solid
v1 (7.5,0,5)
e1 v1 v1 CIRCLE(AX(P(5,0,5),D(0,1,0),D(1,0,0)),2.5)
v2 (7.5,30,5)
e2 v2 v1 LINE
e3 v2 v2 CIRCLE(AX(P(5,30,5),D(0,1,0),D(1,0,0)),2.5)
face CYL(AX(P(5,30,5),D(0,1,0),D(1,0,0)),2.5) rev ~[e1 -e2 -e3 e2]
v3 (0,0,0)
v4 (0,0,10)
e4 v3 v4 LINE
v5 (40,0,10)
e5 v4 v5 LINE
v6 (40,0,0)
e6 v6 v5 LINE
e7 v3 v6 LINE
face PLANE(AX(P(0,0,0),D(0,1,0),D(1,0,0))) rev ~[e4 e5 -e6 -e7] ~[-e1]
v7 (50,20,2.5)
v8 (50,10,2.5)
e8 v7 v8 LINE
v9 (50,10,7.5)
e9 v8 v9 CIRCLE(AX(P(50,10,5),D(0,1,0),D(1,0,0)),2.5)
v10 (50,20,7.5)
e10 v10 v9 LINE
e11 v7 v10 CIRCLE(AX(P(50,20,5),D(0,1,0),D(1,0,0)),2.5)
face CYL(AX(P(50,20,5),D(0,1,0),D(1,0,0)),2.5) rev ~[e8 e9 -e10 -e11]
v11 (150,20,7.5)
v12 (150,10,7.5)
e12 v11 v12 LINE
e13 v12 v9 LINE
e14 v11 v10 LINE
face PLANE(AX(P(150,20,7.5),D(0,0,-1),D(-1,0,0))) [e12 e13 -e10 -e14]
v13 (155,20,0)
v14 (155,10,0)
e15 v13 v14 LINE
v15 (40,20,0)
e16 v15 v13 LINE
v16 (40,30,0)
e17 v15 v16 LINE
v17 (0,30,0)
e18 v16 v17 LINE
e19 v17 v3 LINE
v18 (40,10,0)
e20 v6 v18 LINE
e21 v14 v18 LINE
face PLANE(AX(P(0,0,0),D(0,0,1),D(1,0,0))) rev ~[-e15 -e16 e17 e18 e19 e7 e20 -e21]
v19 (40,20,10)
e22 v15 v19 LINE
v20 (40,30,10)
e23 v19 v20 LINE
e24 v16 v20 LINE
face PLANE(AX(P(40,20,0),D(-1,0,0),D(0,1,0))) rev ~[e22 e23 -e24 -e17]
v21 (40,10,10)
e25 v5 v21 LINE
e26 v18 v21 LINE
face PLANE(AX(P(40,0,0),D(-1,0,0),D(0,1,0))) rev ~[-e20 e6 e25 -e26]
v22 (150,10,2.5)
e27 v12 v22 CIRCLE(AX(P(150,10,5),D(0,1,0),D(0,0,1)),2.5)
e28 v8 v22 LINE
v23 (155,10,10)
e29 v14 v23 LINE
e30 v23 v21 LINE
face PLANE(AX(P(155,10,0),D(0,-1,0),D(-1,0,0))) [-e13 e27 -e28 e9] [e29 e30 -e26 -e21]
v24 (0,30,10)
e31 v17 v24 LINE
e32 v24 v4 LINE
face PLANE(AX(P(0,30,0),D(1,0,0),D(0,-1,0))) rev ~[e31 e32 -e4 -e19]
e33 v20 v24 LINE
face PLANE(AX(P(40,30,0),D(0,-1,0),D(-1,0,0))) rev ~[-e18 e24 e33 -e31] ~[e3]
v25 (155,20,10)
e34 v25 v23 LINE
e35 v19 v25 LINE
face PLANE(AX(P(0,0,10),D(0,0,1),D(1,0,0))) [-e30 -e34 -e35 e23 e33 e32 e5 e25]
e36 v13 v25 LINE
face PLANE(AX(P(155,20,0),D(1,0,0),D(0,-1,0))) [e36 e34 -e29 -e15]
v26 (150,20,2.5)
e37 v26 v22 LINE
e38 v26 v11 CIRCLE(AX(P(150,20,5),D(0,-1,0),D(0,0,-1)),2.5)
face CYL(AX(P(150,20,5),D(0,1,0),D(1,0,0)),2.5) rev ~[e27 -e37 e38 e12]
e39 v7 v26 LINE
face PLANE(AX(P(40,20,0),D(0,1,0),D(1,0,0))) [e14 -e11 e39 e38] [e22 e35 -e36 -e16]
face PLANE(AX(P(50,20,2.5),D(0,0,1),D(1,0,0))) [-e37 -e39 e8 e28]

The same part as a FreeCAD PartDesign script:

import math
import FreeCAD as App
import Part
import Sketcher


def add_polygon(sketch, points):
    """Adds a closed chain of lines whose ends are joined by coincident constraints."""
    first, n = sketch.GeometryCount, len(points)
    for a, b in zip(points, points[1:] + points[:1]):
        sketch.addGeometry(Part.LineSegment(App.Vector(*a, 0), App.Vector(*b, 0)), False)
    for i in range(n):
        sketch.addConstraint(Sketcher.Constraint("Coincident", first + i, 2, first + (i + 1) % n, 1))

doc = App.newDocument("Part")
body = doc.addObject("PartDesign::Body", "Body")

# Sketch on XY plane
sketch1 = body.newObject("Sketcher::SketchObject", "Sketch")
sketch1.AttachmentSupport = (doc.getObject("XY_Plane"), [""])
sketch1.MapMode = "FlatFace"
add_polygon(sketch1, [(0, 30), (0, 0), (40, 0), (40, 10), (155, 10), (155, 20), (40, 20), (40, 30)])  # lines 0-7
sketch1.addConstraint([
    Sketcher.Constraint("Vertical", 0),
    Sketcher.Constraint("Horizontal", 1),
    Sketcher.Constraint("Vertical", 2),
    Sketcher.Constraint("Horizontal", 3),
    Sketcher.Constraint("Vertical", 4),
    Sketcher.Constraint("Horizontal", 5),
    Sketcher.Constraint("Vertical", 6),
    Sketcher.Constraint("Horizontal", 7),
    Sketcher.Constraint("Coincident", 0, 2, -1, 1),
    Sketcher.Constraint("Vertical", 2, 2, 5, 2),
    Sketcher.Constraint("Equal", 2, 4),
    Sketcher.Constraint("Equal", 4, 6),
    Sketcher.Constraint("DistanceX", 1, 1, 1, 2, 40.0),
    Sketcher.Constraint("DistanceX", 3, 1, 3, 2, 115.0),
    Sketcher.Constraint("DistanceY", 0, 2, 0, 1, 30.0),
])
pad1 = body.newObject("PartDesign::Pad", "Pad")
pad1.Profile = sketch1
pad1.Length = 10

# Sketch on XZ plane
sketch2 = body.newObject("Sketcher::SketchObject", "Sketch001")
sketch2.AttachmentSupport = (doc.getObject("XZ_Plane"), [""])
sketch2.MapMode = "FlatFace"
sketch2.AttachmentOffset = App.Placement(App.Vector(0, 0, -20), App.Rotation())
sketch2.addGeometry([
    Part.ArcOfCircle(Part.Circle(App.Vector(150, 5, 0), App.Vector(0, 0, 1), 2.5), math.radians(-90), math.radians(90)),
    Part.LineSegment(App.Vector(150, 2.5, 0), App.Vector(50, 2.5, 0)),
    Part.ArcOfCircle(Part.Circle(App.Vector(50, 5, 0), App.Vector(0, 0, 1), 2.5), math.radians(90), math.radians(270)),
    Part.LineSegment(App.Vector(50, 7.5, 0), App.Vector(150, 7.5, 0)),
], False)
sketch2.addConstraint([
    Sketcher.Constraint("Tangent", 0, 1, 1, 1),
    Sketcher.Constraint("Tangent", 1, 2, 2, 2),
    Sketcher.Constraint("Tangent", 2, 1, 3, 1),
    Sketcher.Constraint("Tangent", 3, 2, 0, 2),
    Sketcher.Constraint("Horizontal", 1),
    Sketcher.Constraint("Horizontal", 3),
    Sketcher.Constraint("Radius", 0, 2.5),
    Sketcher.Constraint("DistanceX", 1, 2, 1, 1, 100.0),
    Sketcher.Constraint("DistanceY", -1, 1, 0, 3, 5.0),
    Sketcher.Constraint("DistanceX", -1, 1, 0, 3, 150.0),
])
pocket1 = body.newObject("PartDesign::Pocket", "Pocket")
pocket1.Profile = sketch2
pocket1.Length = 10
pocket1.Reversed = True

# Sketch on XZ plane
sketch3 = body.newObject("Sketcher::SketchObject", "Sketch002")
sketch3.AttachmentSupport = (doc.getObject("XZ_Plane"), [""])
sketch3.MapMode = "FlatFace"
sketch3.AttachmentOffset = App.Placement(App.Vector(0, 0, -30), App.Rotation())
sketch3.addGeometry(Part.Circle(App.Vector(5, 5, 0), App.Vector(0, 0, 1), 2.5), False)
sketch3.addConstraint([
    Sketcher.Constraint("Diameter", 0, 5.0),
    Sketcher.Constraint("DistanceX", -1, 1, 0, 3, 5.0),
    Sketcher.Constraint("DistanceY", -1, 1, 0, 3, 5.0),
])
pocket2 = body.newObject("PartDesign::Pocket", "Pocket001")
pocket2.Profile = sketch3
pocket2.Length = 30
pocket2.Reversed = True

doc.recompute()
